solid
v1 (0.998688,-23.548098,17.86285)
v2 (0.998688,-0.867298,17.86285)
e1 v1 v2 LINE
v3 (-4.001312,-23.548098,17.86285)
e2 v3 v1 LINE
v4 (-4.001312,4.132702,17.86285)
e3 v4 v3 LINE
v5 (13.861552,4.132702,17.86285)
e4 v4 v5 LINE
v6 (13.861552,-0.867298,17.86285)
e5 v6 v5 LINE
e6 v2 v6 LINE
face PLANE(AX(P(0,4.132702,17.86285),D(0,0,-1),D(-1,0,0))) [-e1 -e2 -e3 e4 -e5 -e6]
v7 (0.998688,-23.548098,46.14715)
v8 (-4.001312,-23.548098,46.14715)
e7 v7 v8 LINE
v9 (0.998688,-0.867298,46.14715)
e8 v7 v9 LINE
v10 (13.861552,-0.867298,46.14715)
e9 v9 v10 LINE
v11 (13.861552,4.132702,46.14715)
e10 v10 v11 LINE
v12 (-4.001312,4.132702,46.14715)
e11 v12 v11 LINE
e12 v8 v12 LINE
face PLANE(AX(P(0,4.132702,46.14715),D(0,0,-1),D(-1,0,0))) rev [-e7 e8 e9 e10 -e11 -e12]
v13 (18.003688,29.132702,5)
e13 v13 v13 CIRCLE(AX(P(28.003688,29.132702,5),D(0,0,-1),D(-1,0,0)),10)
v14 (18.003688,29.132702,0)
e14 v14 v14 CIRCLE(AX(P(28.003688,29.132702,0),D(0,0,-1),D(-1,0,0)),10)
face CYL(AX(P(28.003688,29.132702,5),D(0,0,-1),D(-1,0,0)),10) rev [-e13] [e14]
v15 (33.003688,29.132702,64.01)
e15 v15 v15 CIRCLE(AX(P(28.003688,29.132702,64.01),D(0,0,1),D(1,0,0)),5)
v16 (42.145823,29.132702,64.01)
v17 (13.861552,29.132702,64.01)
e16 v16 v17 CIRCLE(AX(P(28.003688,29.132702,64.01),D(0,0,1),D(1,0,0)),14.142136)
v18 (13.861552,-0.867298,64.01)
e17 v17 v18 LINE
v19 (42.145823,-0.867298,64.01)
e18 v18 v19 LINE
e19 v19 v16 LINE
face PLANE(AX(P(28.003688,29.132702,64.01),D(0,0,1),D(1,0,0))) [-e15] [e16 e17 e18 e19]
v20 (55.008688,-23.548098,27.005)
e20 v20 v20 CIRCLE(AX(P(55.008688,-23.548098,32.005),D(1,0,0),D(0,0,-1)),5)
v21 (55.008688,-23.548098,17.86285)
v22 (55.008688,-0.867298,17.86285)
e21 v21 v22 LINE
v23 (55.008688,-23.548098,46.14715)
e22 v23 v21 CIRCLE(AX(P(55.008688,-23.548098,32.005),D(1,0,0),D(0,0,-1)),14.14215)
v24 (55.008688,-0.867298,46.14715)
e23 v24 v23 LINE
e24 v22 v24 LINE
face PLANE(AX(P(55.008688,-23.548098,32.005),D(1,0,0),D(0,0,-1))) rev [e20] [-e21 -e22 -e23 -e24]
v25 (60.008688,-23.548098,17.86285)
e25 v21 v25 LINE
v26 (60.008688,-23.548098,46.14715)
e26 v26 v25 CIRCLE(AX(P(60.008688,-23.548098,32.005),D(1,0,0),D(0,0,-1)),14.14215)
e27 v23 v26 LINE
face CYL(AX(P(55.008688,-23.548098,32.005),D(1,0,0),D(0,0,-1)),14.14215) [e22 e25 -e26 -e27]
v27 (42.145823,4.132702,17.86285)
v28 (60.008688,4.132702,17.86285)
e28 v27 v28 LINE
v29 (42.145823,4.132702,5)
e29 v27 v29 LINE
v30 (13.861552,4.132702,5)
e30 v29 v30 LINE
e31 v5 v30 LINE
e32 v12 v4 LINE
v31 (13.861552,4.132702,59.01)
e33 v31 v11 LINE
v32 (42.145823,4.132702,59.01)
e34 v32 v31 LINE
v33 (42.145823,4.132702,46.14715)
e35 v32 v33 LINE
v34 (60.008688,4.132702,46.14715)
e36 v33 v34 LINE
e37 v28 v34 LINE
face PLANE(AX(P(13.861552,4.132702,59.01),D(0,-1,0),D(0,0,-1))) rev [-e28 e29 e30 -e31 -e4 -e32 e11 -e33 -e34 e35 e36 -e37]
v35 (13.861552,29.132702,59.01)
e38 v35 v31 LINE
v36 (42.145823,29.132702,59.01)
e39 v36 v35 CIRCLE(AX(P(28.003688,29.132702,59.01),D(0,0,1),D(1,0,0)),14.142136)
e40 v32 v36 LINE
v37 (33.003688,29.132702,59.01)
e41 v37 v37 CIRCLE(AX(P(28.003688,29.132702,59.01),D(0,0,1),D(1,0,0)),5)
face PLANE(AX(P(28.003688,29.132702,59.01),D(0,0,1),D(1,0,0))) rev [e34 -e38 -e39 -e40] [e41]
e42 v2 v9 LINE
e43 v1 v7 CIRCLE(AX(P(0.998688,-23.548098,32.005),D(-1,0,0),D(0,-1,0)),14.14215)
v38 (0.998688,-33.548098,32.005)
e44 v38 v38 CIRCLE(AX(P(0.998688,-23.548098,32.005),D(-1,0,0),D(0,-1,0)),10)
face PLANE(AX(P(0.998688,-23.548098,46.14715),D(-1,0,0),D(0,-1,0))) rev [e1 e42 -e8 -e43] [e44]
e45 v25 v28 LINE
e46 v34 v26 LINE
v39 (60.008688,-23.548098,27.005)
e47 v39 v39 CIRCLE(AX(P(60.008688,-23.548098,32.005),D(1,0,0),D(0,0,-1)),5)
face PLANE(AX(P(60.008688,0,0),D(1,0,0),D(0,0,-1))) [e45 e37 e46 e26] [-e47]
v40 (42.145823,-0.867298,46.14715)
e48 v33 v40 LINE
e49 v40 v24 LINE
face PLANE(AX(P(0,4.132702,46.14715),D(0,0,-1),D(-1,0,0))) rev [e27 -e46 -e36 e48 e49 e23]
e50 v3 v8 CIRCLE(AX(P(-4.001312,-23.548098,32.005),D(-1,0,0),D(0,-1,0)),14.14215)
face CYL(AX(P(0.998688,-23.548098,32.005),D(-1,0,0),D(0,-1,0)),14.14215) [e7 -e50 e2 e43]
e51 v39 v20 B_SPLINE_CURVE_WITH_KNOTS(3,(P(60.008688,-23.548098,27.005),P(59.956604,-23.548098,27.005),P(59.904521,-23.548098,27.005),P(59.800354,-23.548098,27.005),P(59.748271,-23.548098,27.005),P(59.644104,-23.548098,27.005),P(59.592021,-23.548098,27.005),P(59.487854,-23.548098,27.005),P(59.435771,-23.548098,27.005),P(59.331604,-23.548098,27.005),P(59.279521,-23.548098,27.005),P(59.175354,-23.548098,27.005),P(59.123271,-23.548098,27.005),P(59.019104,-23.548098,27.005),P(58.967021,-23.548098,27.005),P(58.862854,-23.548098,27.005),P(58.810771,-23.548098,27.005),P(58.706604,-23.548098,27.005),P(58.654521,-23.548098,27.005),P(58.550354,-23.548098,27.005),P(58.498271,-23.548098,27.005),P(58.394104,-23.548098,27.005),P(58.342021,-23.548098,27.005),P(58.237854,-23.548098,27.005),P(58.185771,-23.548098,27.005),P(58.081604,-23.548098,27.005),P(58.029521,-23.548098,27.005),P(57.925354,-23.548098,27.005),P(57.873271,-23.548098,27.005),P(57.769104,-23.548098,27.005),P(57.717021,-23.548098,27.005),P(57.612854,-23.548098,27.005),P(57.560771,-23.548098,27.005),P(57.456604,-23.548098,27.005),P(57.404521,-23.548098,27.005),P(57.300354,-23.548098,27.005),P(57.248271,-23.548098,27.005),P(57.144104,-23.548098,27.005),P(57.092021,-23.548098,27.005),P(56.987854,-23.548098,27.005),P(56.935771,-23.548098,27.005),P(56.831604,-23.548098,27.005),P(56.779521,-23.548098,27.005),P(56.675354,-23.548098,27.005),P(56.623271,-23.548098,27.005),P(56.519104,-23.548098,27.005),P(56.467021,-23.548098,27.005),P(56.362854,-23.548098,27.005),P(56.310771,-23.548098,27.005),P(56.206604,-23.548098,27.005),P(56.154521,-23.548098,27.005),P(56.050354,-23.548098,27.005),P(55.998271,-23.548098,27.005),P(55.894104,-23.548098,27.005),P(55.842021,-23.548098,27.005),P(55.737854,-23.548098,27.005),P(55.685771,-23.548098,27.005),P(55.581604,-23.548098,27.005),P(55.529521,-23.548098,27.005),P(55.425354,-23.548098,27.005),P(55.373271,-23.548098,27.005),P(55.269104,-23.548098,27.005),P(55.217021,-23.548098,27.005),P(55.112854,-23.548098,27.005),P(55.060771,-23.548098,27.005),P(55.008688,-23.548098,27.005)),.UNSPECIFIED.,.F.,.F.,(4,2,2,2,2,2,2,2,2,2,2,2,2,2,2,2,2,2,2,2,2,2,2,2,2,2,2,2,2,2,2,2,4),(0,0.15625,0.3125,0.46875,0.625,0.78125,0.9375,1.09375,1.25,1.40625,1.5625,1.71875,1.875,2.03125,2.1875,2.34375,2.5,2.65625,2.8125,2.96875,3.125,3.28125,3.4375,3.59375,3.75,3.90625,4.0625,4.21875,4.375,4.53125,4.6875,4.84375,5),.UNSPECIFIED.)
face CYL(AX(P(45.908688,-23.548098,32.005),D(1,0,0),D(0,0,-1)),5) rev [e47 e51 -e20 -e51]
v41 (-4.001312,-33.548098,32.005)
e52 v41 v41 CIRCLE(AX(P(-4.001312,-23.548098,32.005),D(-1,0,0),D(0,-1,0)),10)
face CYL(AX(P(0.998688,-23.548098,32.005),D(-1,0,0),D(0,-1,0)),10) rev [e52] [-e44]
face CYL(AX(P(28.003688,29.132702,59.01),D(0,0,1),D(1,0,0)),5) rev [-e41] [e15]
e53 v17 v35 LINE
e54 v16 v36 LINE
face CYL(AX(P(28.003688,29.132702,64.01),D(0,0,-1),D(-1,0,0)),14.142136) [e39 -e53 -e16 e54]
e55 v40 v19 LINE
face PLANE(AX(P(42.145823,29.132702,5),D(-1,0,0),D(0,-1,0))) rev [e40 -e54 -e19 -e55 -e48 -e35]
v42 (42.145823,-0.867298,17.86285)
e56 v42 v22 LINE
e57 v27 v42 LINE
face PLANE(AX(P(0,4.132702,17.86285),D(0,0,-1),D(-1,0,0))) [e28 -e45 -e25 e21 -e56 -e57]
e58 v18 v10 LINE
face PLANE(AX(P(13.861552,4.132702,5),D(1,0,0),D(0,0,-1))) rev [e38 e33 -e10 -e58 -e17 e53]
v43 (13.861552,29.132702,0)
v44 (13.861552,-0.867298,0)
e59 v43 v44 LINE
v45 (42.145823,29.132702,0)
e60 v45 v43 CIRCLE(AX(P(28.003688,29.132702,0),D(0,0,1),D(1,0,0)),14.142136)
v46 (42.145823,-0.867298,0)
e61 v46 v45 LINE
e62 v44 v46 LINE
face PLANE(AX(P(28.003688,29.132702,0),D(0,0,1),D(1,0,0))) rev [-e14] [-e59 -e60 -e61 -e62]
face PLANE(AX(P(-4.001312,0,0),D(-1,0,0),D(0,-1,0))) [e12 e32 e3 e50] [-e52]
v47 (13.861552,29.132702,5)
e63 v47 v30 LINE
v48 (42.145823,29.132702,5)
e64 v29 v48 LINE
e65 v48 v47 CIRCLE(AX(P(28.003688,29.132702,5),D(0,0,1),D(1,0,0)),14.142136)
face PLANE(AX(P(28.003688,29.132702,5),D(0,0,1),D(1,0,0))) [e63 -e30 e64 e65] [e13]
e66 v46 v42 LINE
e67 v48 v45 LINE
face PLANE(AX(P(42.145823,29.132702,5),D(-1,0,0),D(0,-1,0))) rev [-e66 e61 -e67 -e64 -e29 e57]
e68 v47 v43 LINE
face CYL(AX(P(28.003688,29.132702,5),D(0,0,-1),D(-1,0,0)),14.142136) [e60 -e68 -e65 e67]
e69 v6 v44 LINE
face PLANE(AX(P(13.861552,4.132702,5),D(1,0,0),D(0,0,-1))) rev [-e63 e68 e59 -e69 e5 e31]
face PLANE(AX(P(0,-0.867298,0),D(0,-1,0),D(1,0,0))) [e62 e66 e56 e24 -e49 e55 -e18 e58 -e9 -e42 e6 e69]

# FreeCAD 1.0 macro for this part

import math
import FreeCAD as App
import Part
import Sketcher

V = App.Vector

doc = App.newDocument("Part")
body = doc.addObject("PartDesign::Body", "Body")

sketch1 = body.newObject("Sketcher::SketchObject", "Sketch")
sketch1.AttachmentSupport = (doc.getObject("XY_Plane"), [""])
sketch1.MapMode = "FlatFace"
sketch1.addGeometry([
    Part.LineSegment(V(13.861552, 4.132702, 0), V(42.145823, 4.132702, 0)),
    Part.LineSegment(V(42.145823, 4.132702, 0), V(42.145823, 29.132702, 0)),
    Part.ArcOfCircle(Part.Circle(V(28.003688, 29.132702, 0), V(0, 0, 1), 14.142136), math.radians(0), math.radians(180)),
    Part.LineSegment(V(13.861552, 29.132702, 0), V(13.861552, 4.132702, 0)),
], False)
sketch1.addConstraint([
    Sketcher.Constraint("Coincident", 0, 2, 1, 1),
    Sketcher.Constraint("Tangent", 1, 2, 2, 1),
    Sketcher.Constraint("Tangent", 2, 2, 3, 1),
    Sketcher.Constraint("Coincident", 3, 2, 0, 1),
    Sketcher.Constraint("Horizontal", 0),
    Sketcher.Constraint("Vertical", 1),
    Sketcher.Constraint("Vertical", 3),
    Sketcher.Constraint("DistanceY", 1, 1, 1, 2, 25.0),
    Sketcher.Constraint("Radius", 2, 14.142136),
    Sketcher.Constraint("DistanceX", -1, 1, 2, 3, 28.003688),
    Sketcher.Constraint("DistanceY", -1, 1, 2, 3, 29.132702),
])
pad1 = body.newObject("PartDesign::Pad", "Pad")
pad1.Profile = sketch1
pad1.Length = 5

sketch2 = body.newObject("Sketcher::SketchObject", "Sketch001")
sketch2.AttachmentSupport = (doc.getObject("XY_Plane"), [""])
sketch2.MapMode = "FlatFace"
sketch2.AttachmentOffset = App.Placement(V(0, 0, 5), App.Rotation())
sketch2.addGeometry(Part.Circle(V(28.003688, 29.132702, 0), V(0, 0, 1), 2.05), False)
sketch2.addConstraint([
    Sketcher.Constraint("Diameter", 0, 4.1),
    Sketcher.Constraint("DistanceX", -1, 1, 0, 3, 28.003688),
    Sketcher.Constraint("DistanceY", -1, 1, 0, 3, 29.132702),
])
pocket1 = body.newObject("PartDesign::Pocket", "Pocket")
pocket1.Profile = sketch2
pocket1.Length = 5

sketch3 = body.newObject("Sketcher::SketchObject", "Sketch002")
sketch3.AttachmentSupport = (doc.getObject("XZ_Plane"), [""])
sketch3.MapMode = "FlatFace"
sketch3.AttachmentOffset = App.Placement(V(0, 0, -4.132702), App.Rotation())
sketch3.addGeometry([
    Part.LineSegment(V(13.861552, 5, 0), V(13.861552, 0, 0)),
    Part.LineSegment(V(13.861552, 0, 0), V(42.145823, 0, 0)),
    Part.LineSegment(V(42.145823, 0, 0), V(42.145823, 5, 0)),
    Part.LineSegment(V(42.145823, 5, 0), V(13.861552, 5, 0)),
], False)
sketch3.addConstraint([
    Sketcher.Constraint("Coincident", 0, 2, 1, 1),
    Sketcher.Constraint("Coincident", 1, 2, 2, 1),
    Sketcher.Constraint("Coincident", 2, 2, 3, 1),
    Sketcher.Constraint("Coincident", 3, 2, 0, 1),
    Sketcher.Constraint("Vertical", 0),
    Sketcher.Constraint("Horizontal", 1),
    Sketcher.Constraint("Vertical", 2),
    Sketcher.Constraint("Horizontal", 3),
    Sketcher.Constraint("PointOnObject", 0, 2, -1),
    Sketcher.Constraint("DistanceY", 0, 2, 0, 1, 5.0),
    Sketcher.Constraint("DistanceX", 1, 1, 1, 2, 28.284271),
    Sketcher.Constraint("DistanceX", -1, 1, 0, 2, 13.861552),
])
pad2 = body.newObject("PartDesign::Pad", "Pad001")
pad2.Profile = sketch3
pad2.Length = 5

sketch4 = body.newObject("Sketcher::SketchObject", "Sketch003")
sketch4.AttachmentSupport = (doc.getObject("XY_Plane"), [""])
sketch4.MapMode = "FlatFace"
sketch4.AttachmentOffset = App.Placement(V(0, 0, 5), App.Rotation())
sketch4.addGeometry([
    Part.LineSegment(V(13.861552, 4.132702, 0), V(13.861552, -0.867298, 0)),
    Part.LineSegment(V(13.861552, -0.867298, 0), V(42.145823, -0.867298, 0)),
    Part.LineSegment(V(42.145823, -0.867298, 0), V(42.145823, 4.132702, 0)),
    Part.LineSegment(V(42.145823, 4.132702, 0), V(13.861552, 4.132702, 0)),
], False)
sketch4.addConstraint([
    Sketcher.Constraint("Coincident", 0, 2, 1, 1),
    Sketcher.Constraint("Coincident", 1, 2, 2, 1),
    Sketcher.Constraint("Coincident", 2, 2, 3, 1),
    Sketcher.Constraint("Coincident", 3, 2, 0, 1),
    Sketcher.Constraint("Vertical", 0),
    Sketcher.Constraint("Horizontal", 1),
    Sketcher.Constraint("Vertical", 2),
    Sketcher.Constraint("Horizontal", 3),
    Sketcher.Constraint("DistanceY", 0, 2, 0, 1, 5.0),
    Sketcher.Constraint("DistanceX", 1, 1, 1, 2, 28.284271),
    Sketcher.Constraint("DistanceX", -1, 1, 0, 2, 13.861552),
    Sketcher.Constraint("DistanceY", 0, 2, -1, 1, 0.867298),
])
pad3 = body.newObject("PartDesign::Pad", "Pad002")
pad3.Profile = sketch4
pad3.Length = 54.01

sketch5 = body.newObject("Sketcher::SketchObject", "Sketch004")
sketch5.AttachmentSupport = (doc.getObject("XY_Plane"), [""])
sketch5.MapMode = "FlatFace"
sketch5.AttachmentOffset = App.Placement(V(0, 0, 59.01), App.Rotation())
sketch5.addGeometry([
    Part.ArcOfCircle(Part.Circle(V(28.003688, 29.132702, 0), V(0, 0, 1), 14.142136), math.radians(0), math.radians(180)),
    Part.LineSegment(V(13.861552, 29.132702, 0), V(13.861552, -0.867298, 0)),
    Part.LineSegment(V(13.861552, -0.867298, 0), V(42.145823, -0.867298, 0)),
    Part.LineSegment(V(42.145823, -0.867298, 0), V(42.145823, 29.132702, 0)),
], False)
sketch5.addConstraint([
    Sketcher.Constraint("Tangent", 0, 2, 1, 1),
    Sketcher.Constraint("Coincident", 1, 2, 2, 1),
    Sketcher.Constraint("Coincident", 2, 2, 3, 1),
    Sketcher.Constraint("Tangent", 3, 2, 0, 1),
    Sketcher.Constraint("Vertical", 1),
    Sketcher.Constraint("Horizontal", 2),
    Sketcher.Constraint("Vertical", 3),
    Sketcher.Constraint("DistanceY", 1, 2, 1, 1, 30.0),
    Sketcher.Constraint("Radius", 0, 14.142136),
    Sketcher.Constraint("DistanceX", -1, 1, 0, 3, 28.003688),
    Sketcher.Constraint("DistanceY", -1, 1, 0, 3, 29.132702),
])
pad4 = body.newObject("PartDesign::Pad", "Pad003")
pad4.Profile = sketch5
pad4.Length = 5

sketch6 = body.newObject("Sketcher::SketchObject", "Sketch005")
sketch6.AttachmentSupport = (doc.getObject("XZ_Plane"), [""])
sketch6.MapMode = "FlatFace"
sketch6.AttachmentOffset = App.Placement(V(0, 0, 0.867298), App.Rotation())
sketch6.addGeometry([
    Part.LineSegment(V(55.008688, 46.14715, 0), V(0.998688, 46.14715, 0)),
    Part.LineSegment(V(0.998688, 46.14715, 0), V(0.998688, 17.86285, 0)),
    Part.LineSegment(V(0.998688, 17.86285, 0), V(55.008688, 17.86285, 0)),
    Part.LineSegment(V(55.008688, 17.86285, 0), V(55.008688, 46.14715, 0)),
], False)
sketch6.addConstraint([
    Sketcher.Constraint("Coincident", 0, 2, 1, 1),
    Sketcher.Constraint("Coincident", 1, 2, 2, 1),
    Sketcher.Constraint("Coincident", 2, 2, 3, 1),
    Sketcher.Constraint("Coincident", 3, 2, 0, 1),
    Sketcher.Constraint("Horizontal", 0),
    Sketcher.Constraint("Vertical", 1),
    Sketcher.Constraint("Horizontal", 2),
    Sketcher.Constraint("Vertical", 3),
    Sketcher.Constraint("DistanceX", 0, 2, 0, 1, 54.01),
    Sketcher.Constraint("DistanceY", 1, 2, 1, 1, 28.2843),
    Sketcher.Constraint("DistanceY", -1, 1, 0, 2, 46.14715),
    Sketcher.Constraint("DistanceX", -1, 1, 0, 2, 0.998688),
])
pad5 = body.newObject("PartDesign::Pad", "Pad004")
pad5.Profile = sketch6
pad5.Length = 5
pad5.Reversed = True

sketch7 = body.newObject("Sketcher::SketchObject", "Sketch006")
sketch7.AttachmentSupport = (doc.getObject("YZ_Plane"), [""])
sketch7.MapMode = "FlatFace"
sketch7.AttachmentOffset = App.Placement(V(0, 0, 0.998688), App.Rotation())
sketch7.addGeometry([
    Part.LineSegment(V(4.132702, 17.86285, 0), V(-0.867298, 17.86285, 0)),
    Part.LineSegment(V(-0.867298, 17.86285, 0), V(-0.867298, 46.14715, 0)),
    Part.LineSegment(V(-0.867298, 46.14715, 0), V(4.132702, 46.14715, 0)),
    Part.LineSegment(V(4.132702, 46.14715, 0), V(4.132702, 17.86285, 0)),
], False)
sketch7.addConstraint([
    Sketcher.Constraint("Coincident", 0, 2, 1, 1),
    Sketcher.Constraint("Coincident", 1, 2, 2, 1),
    Sketcher.Constraint("Coincident", 2, 2, 3, 1),
    Sketcher.Constraint("Coincident", 3, 2, 0, 1),
    Sketcher.Constraint("Horizontal", 0),
    Sketcher.Constraint("Vertical", 1),
    Sketcher.Constraint("Horizontal", 2),
    Sketcher.Constraint("Vertical", 3),
    Sketcher.Constraint("DistanceX", 0, 2, 0, 1, 5.0),
    Sketcher.Constraint("DistanceY", 1, 1, 1, 2, 28.2843),
    Sketcher.Constraint("DistanceY", -1, 1, 0, 2, 17.86285),
    Sketcher.Constraint("DistanceX", 0, 2, -1, 1, 0.867298),
])
pad6 = body.newObject("PartDesign::Pad", "Pad005")
pad6.Profile = sketch7
pad6.Length = 5
pad6.Reversed = True

sketch8 = body.newObject("Sketcher::SketchObject", "Sketch007")
sketch8.AttachmentSupport = (doc.getObject("XZ_Plane"), [""])
sketch8.MapMode = "FlatFace"
sketch8.AttachmentOffset = App.Placement(V(0, 0, 0.867298), App.Rotation())
sketch8.addGeometry([
    Part.LineSegment(V(-4.001312, 46.14715, 0), V(-4.001312, 17.86285, 0)),
    Part.LineSegment(V(-4.001312, 17.86285, 0), V(0.998688, 17.86285, 0)),
    Part.LineSegment(V(0.998688, 17.86285, 0), V(0.998688, 46.14715, 0)),
    Part.LineSegment(V(0.998688, 46.14715, 0), V(-4.001312, 46.14715, 0)),
], False)
sketch8.addConstraint([
    Sketcher.Constraint("Coincident", 0, 2, 1, 1),
    Sketcher.Constraint("Coincident", 1, 2, 2, 1),
    Sketcher.Constraint("Coincident", 2, 2, 3, 1),
    Sketcher.Constraint("Coincident", 3, 2, 0, 1),
    Sketcher.Constraint("Vertical", 0),
    Sketcher.Constraint("Horizontal", 1),
    Sketcher.Constraint("Vertical", 2),
    Sketcher.Constraint("Horizontal", 3),
    Sketcher.Constraint("DistanceX", 1, 1, 1, 2, 5.0),
    Sketcher.Constraint("DistanceY", 0, 2, 0, 1, 28.2843),
    Sketcher.Constraint("DistanceY", -1, 1, 0, 2, 17.86285),
    Sketcher.Constraint("DistanceX", 0, 2, -1, 1, 4.001312),
])
pad7 = body.newObject("PartDesign::Pad", "Pad006")
pad7.Profile = sketch8
pad7.Length = 22.6808

sketch9 = body.newObject("Sketcher::SketchObject", "Sketch008")
sketch9.AttachmentSupport = (doc.getObject("YZ_Plane"), [""])
sketch9.MapMode = "FlatFace"
sketch9.AttachmentOffset = App.Placement(V(0, 0, -4.001312), App.Rotation())
sketch9.addGeometry([
    Part.LineSegment(V(-23.548098, 46.14715, 0), V(-23.548098, 17.86285, 0)),
    Part.ArcOfCircle(Part.Circle(V(-23.548098, 32.005, 0), V(0, 0, 1), 14.14215), math.radians(90), math.radians(270)),
], False)
sketch9.addConstraint([
    Sketcher.Constraint("Coincident", 0, 1, 1, 1),
    Sketcher.Constraint("Coincident", 1, 2, 0, 2),
    Sketcher.Constraint("Vertical", 0),
    Sketcher.Constraint("Vertical", 1, 3, 0, 1),
    Sketcher.Constraint("Radius", 1, 14.14215),
    Sketcher.Constraint("DistanceY", -1, 1, 1, 3, 32.005),
    Sketcher.Constraint("DistanceX", 1, 3, -1, 1, 23.548098),
])
pad8 = body.newObject("PartDesign::Pad", "Pad007")
pad8.Profile = sketch9
pad8.Length = 5

sketch10 = body.newObject("Sketcher::SketchObject", "Sketch009")
sketch10.AttachmentSupport = (doc.getObject("YZ_Plane"), [""])
sketch10.MapMode = "FlatFace"
sketch10.AttachmentOffset = App.Placement(V(0, 0, 55.008688), App.Rotation())
sketch10.addGeometry([
    Part.LineSegment(V(4.132702, 46.14715, 0), V(-0.867298, 46.14715, 0)),
    Part.LineSegment(V(-0.867298, 46.14715, 0), V(-0.867298, 17.86285, 0)),
    Part.LineSegment(V(-0.867298, 17.86285, 0), V(4.132702, 17.86285, 0)),
    Part.LineSegment(V(4.132702, 17.86285, 0), V(4.132702, 46.14715, 0)),
], False)
sketch10.addConstraint([
    Sketcher.Constraint("Coincident", 0, 2, 1, 1),
    Sketcher.Constraint("Coincident", 1, 2, 2, 1),
    Sketcher.Constraint("Coincident", 2, 2, 3, 1),
    Sketcher.Constraint("Coincident", 3, 2, 0, 1),
    Sketcher.Constraint("Horizontal", 0),
    Sketcher.Constraint("Vertical", 1),
    Sketcher.Constraint("Horizontal", 2),
    Sketcher.Constraint("Vertical", 3),
    Sketcher.Constraint("DistanceX", 0, 2, 0, 1, 5.0),
    Sketcher.Constraint("DistanceY", 1, 2, 1, 1, 28.2843),
    Sketcher.Constraint("DistanceY", -1, 1, 0, 2, 46.14715),
    Sketcher.Constraint("DistanceX", 0, 2, -1, 1, 0.867298),
])
pad9 = body.newObject("PartDesign::Pad", "Pad008")
pad9.Profile = sketch10
pad9.Length = 5

sketch11 = body.newObject("Sketcher::SketchObject", "Sketch010")
sketch11.AttachmentSupport = (doc.getObject("YZ_Plane"), [""])
sketch11.MapMode = "FlatFace"
sketch11.AttachmentOffset = App.Placement(V(0, 0, 55.008688), App.Rotation())
sketch11.addGeometry([
    Part.LineSegment(V(-0.867298, 17.86285, 0), V(-0.867298, 46.14715, 0)),
    Part.LineSegment(V(-0.867298, 46.14715, 0), V(-23.548098, 46.14715, 0)),
    Part.ArcOfCircle(Part.Circle(V(-23.548098, 32.005, 0), V(0, 0, 1), 14.14215), math.radians(90), math.radians(270)),
    Part.LineSegment(V(-23.548098, 17.86285, 0), V(-0.867298, 17.86285, 0)),
], False)
sketch11.addConstraint([
    Sketcher.Constraint("Coincident", 0, 2, 1, 1),
    Sketcher.Constraint("Tangent", 1, 2, 2, 1),
    Sketcher.Constraint("Tangent", 2, 2, 3, 1),
    Sketcher.Constraint("Coincident", 3, 2, 0, 1),
    Sketcher.Constraint("Vertical", 0),
    Sketcher.Constraint("Horizontal", 1),
    Sketcher.Constraint("Horizontal", 3),
    Sketcher.Constraint("Radius", 2, 14.14215),
    Sketcher.Constraint("DistanceX", 1, 2, 1, 1, 22.6808),
    Sketcher.Constraint("DistanceY", -1, 1, 2, 3, 32.005),
    Sketcher.Constraint("DistanceX", 2, 3, -1, 1, 23.548098),
])
pad10 = body.newObject("PartDesign::Pad", "Pad009")
pad10.Profile = sketch11
pad10.Length = 5

sketch12 = body.newObject("Sketcher::SketchObject", "Sketch011")
sketch12.AttachmentSupport = (doc.getObject("XY_Plane"), [""])
sketch12.MapMode = "FlatFace"
sketch12.AttachmentOffset = App.Placement(V(0, 0, 64.01), App.Rotation())
sketch12.addGeometry(Part.Circle(V(28.003688, 29.132702, 0), V(0, 0, 1), 5), False)
sketch12.addConstraint([
    Sketcher.Constraint("Diameter", 0, 10.0),
    Sketcher.Constraint("DistanceX", -1, 1, 0, 3, 28.003688),
    Sketcher.Constraint("DistanceY", -1, 1, 0, 3, 29.132702),
])
pocket2 = body.newObject("PartDesign::Pocket", "Pocket001")
pocket2.Profile = sketch12
pocket2.Length = 5

sketch13 = body.newObject("Sketcher::SketchObject", "Sketch012")
sketch13.AttachmentSupport = (doc.getObject("YZ_Plane"), [""])
sketch13.MapMode = "FlatFace"
sketch13.AttachmentOffset = App.Placement(V(0, 0, 60.008688), App.Rotation())
sketch13.addGeometry(Part.Circle(V(-23.548098, 32.005, 0), V(0, 0, 1), 5), False)
sketch13.addConstraint([
    Sketcher.Constraint("Diameter", 0, 10.0),
    Sketcher.Constraint("DistanceY", -1, 1, 0, 3, 32.005),
    Sketcher.Constraint("DistanceX", 0, 3, -1, 1, 23.548098),
])
pocket3 = body.newObject("PartDesign::Pocket", "Pocket002")
pocket3.Profile = sketch13
pocket3.Length = 14.1

sketch14 = body.newObject("Sketcher::SketchObject", "Sketch013")
sketch14.AttachmentSupport = (doc.getObject("YZ_Plane"), [""])
sketch14.MapMode = "FlatFace"
sketch14.AttachmentOffset = App.Placement(V(0, 0, -4.001312), App.Rotation())
sketch14.addGeometry(Part.Circle(V(-23.548098, 32.005, 0), V(0, 0, 1), 2.05), False)
sketch14.addConstraint([
    Sketcher.Constraint("Diameter", 0, 4.1),
    Sketcher.Constraint("DistanceY", -1, 1, 0, 3, 32.005),
    Sketcher.Constraint("DistanceX", 0, 3, -1, 1, 23.548098),
])
pocket4 = body.newObject("PartDesign::Pocket", "Pocket003")
pocket4.Profile = sketch14
pocket4.Length = 8.1
pocket4.Reversed = True

sketch15 = body.newObject("Sketcher::SketchObject", "Sketch014")
sketch15.AttachmentSupport = (doc.getObject("XY_Plane"), [""])
sketch15.MapMode = "FlatFace"
sketch15.addGeometry(Part.Circle(V(28.003688, 29.132702, 0), V(0, 0, 1), 10), False)
sketch15.addConstraint([
    Sketcher.Constraint("Diameter", 0, 20.0),
    Sketcher.Constraint("DistanceX", -1, 1, 0, 3, 28.003688),
    Sketcher.Constraint("DistanceY", -1, 1, 0, 3, 29.132702),
])
pocket5 = body.newObject("PartDesign::Pocket", "Pocket004")
pocket5.Profile = sketch15
pocket5.Length = 5
pocket5.Reversed = True

sketch16 = body.newObject("Sketcher::SketchObject", "Sketch015")
sketch16.AttachmentSupport = (doc.getObject("YZ_Plane"), [""])
sketch16.MapMode = "FlatFace"
sketch16.AttachmentOffset = App.Placement(V(0, 0, -4.001312), App.Rotation())
sketch16.addGeometry(Part.Circle(V(-23.548098, 32.005, 0), V(0, 0, 1), 10), False)
sketch16.addConstraint([
    Sketcher.Constraint("Diameter", 0, 20.0),
    Sketcher.Constraint("DistanceY", -1, 1, 0, 3, 32.005),
    Sketcher.Constraint("DistanceX", 0, 3, -1, 1, 23.548098),
])
pocket6 = body.newObject("PartDesign::Pocket", "Pocket005")
pocket6.Profile = sketch16
pocket6.Length = 5
pocket6.Reversed = True

doc.recompute()
